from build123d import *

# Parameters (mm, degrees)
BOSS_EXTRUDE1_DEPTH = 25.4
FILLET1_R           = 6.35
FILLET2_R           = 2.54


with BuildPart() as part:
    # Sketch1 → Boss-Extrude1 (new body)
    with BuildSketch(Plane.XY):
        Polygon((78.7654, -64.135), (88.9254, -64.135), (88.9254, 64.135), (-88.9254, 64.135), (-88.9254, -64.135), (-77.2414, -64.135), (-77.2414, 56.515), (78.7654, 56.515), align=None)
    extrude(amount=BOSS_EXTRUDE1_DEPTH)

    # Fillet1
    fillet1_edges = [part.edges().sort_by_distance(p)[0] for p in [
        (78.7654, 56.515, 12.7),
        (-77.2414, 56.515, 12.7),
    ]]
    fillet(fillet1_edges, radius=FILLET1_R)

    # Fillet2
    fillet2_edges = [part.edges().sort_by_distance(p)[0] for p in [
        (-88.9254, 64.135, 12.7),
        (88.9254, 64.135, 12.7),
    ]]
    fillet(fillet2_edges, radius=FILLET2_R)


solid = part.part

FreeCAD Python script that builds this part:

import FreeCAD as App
import Part
import Sketcher

V = App.Vector
Q = App.Units.Quantity


def edges_at(feature, points):
    """Names of the edges that pass closest to the given points."""
    edges = feature.Shape.Edges
    near = lambda p: min(range(len(edges)), key=lambda i: edges[i].distToShape(Part.Vertex(*p))[0])
    return sorted({f"Edge{near(p) + 1}" for p in points})


def add_polygon(sketch, points):
    """Adds a closed chain of lines whose ends are joined by coincident constraints."""
    first, n = sketch.GeometryCount, len(points)
    for a, b in zip(points, points[1:] + points[:1]):
        sketch.addGeometry(Part.LineSegment(App.Vector(*a, 0), App.Vector(*b, 0)), False)
    for i in range(n):
        sketch.addConstraint(Sketcher.Constraint("Coincident", first + i, 2, first + (i + 1) % n, 1))

doc = App.newDocument("Part")
params = doc.addObject("Spreadsheet::Sheet", "Params")
for row, (alias, value) in enumerate([
    ("sketch1_width", "0.4 in"),
    ("sketch1_width2", "0.46 in"),
    ("sketch1_height", "5.05 in"),
    ("sketch1_height2", "4.75 in"),
    ("sketch1_width3", "7.002 in"),
    ("pad1_length", "1 in"),
    ("fillet_radius", "0.25 in"),
    ("fillet2_radius", "0.1 in"),
], start=1):
    params.set(f"A{row}", alias)
    params.set(f"B{row}", "=" + value)
    params.setAlias(f"B{row}", alias)

body = doc.addObject("PartDesign::Body", "Body")

sketch1 = doc.addObject("Sketcher::SketchObject", "Sketch")
body.addObject(sketch1)
sketch1.AttachmentSupport = (doc.XY_Plane, [""])
sketch1.MapMode = "FlatFace"
add_polygon(sketch1, [(79, -64), (89, -64), (89, 64), (-89, 64), (-89, -64), (-77, -64), (-77, 57), (79, 57)])
sketch1.addConstraint(Sketcher.Constraint("Horizontal", 0))
sketch1.addConstraint(Sketcher.Constraint("Vertical", 1))
sketch1.addConstraint(Sketcher.Constraint("Horizontal", 2))
sketch1.addConstraint(Sketcher.Constraint("Vertical", 3))
sketch1.addConstraint(Sketcher.Constraint("Horizontal", 4))
sketch1.addConstraint(Sketcher.Constraint("Vertical", 5))
sketch1.addConstraint(Sketcher.Constraint("Horizontal", 6))
sketch1.addConstraint(Sketcher.Constraint("Vertical", 7))
sketch1.addConstraint(Sketcher.Constraint("Symmetric", 0, 2, 2, 2, -1, 1))
sketch1.addConstraint(Sketcher.Constraint("Horizontal", 0, 2, 3, 2))
sketch1.addConstraint(Sketcher.Constraint("DistanceX", 0, 1, 0, 2, Q("0.4 in")))
sketch1.addConstraint(Sketcher.Constraint("DistanceX", 4, 1, 4, 2, Q("0.46 in")))
sketch1.addConstraint(Sketcher.Constraint("DistanceY", 1, 1, 1, 2, Q("5.05 in")))
sketch1.addConstraint(Sketcher.Constraint("DistanceY", 5, 1, 5, 2, Q("4.75 in")))
sketch1.addConstraint(Sketcher.Constraint("DistanceX", 2, 2, 2, 1, Q("7.002 in")))
sketch1.setExpression("Constraints[18]", "Params.sketch1_width")
sketch1.setExpression("Constraints[19]", "Params.sketch1_width2")
sketch1.setExpression("Constraints[20]", "Params.sketch1_height")
sketch1.setExpression("Constraints[21]", "Params.sketch1_height2")
sketch1.setExpression("Constraints[22]", "Params.sketch1_width3")
pad1 = doc.addObject("PartDesign::Pad", "Pad")
body.addObject(pad1)
pad1.Profile = sketch1
pad1.setExpression("Length", "Params.pad1_length")
doc.recompute()

fillet = doc.addObject("PartDesign::Fillet", "Fillet")
body.addObject(fillet)
fillet.Base = (pad1, edges_at(pad1, [(78.765, 56.515, 12.7), (-77.241, 56.515, 12.7)]))
fillet.setExpression("Radius", "Params.fillet_radius")
doc.recompute()

fillet2 = doc.addObject("PartDesign::Fillet", "Fillet001")
body.addObject(fillet2)
fillet2.Base = (fillet, edges_at(fillet, [(-88.925, 64.135, 12.7), (88.925, 64.135, 12.7)]))
fillet2.setExpression("Radius", "Params.fillet2_radius")

doc.recompute()
